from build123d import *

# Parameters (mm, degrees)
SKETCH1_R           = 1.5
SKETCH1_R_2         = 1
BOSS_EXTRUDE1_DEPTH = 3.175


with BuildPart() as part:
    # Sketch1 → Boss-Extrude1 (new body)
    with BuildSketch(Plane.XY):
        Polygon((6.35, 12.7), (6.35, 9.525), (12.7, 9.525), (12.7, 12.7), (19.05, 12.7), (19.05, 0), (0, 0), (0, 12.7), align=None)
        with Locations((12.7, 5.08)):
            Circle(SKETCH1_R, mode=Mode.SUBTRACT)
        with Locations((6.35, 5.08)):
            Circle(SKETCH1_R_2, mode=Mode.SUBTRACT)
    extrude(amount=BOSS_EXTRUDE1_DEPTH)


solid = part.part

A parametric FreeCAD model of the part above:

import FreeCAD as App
import Part
import Sketcher
Q = App.Units.Quantity


def add_polygon(sketch, points):
    """Adds a closed chain of lines whose ends are joined by coincident constraints."""
    first, n = sketch.GeometryCount, len(points)
    for a, b in zip(points, points[1:] + points[:1]):
        sketch.addGeometry(Part.LineSegment(App.Vector(*a, 0), App.Vector(*b, 0)), False)
    for i in range(n):
        sketch.addConstraint(Sketcher.Constraint("Coincident", first + i, 2, first + (i + 1) % n, 1))

doc = App.newDocument("Part")
body = doc.addObject("PartDesign::Body", "Body")

sketch1 = body.newObject("Sketcher::SketchObject", "Sketch")
sketch1.AttachmentSupport = (doc.getObject("XY_Plane"), [""])
sketch1.MapMode = "FlatFace"
add_polygon(sketch1, [(6.3, 9.5), (6.3, 12.7), (0, 12.7), (0, 0), (19.1, 0), (19.1, 12.7), (12.7, 12.7), (12.7, 9.5)])
sketch1.addGeometry(Part.Circle(App.Vector(12.7, 5.1, 0), App.Vector(0, 0, 1), 1.5), False)
sketch1.addGeometry(Part.Circle(App.Vector(6.3, 5.1, 0), App.Vector(0, 0, 1), 1), False)
sketch1.addConstraint(Sketcher.Constraint("Vertical", 0))
sketch1.addConstraint(Sketcher.Constraint("Horizontal", 1))
sketch1.addConstraint(Sketcher.Constraint("Vertical", 2))
sketch1.addConstraint(Sketcher.Constraint("Horizontal", 3))
sketch1.addConstraint(Sketcher.Constraint("Vertical", 4))
sketch1.addConstraint(Sketcher.Constraint("Horizontal", 5))
sketch1.addConstraint(Sketcher.Constraint("Vertical", 6))
sketch1.addConstraint(Sketcher.Constraint("Horizontal", 7))
sketch1.addConstraint(Sketcher.Constraint("Coincident", 2, 2, -1, 1))
sketch1.addConstraint(Sketcher.Constraint("Horizontal", 8, 3, 9, 3))
sketch1.addConstraint(Sketcher.Constraint("Horizontal", 1, 2, 4, 2))
sketch1.addConstraint(Sketcher.Constraint("Vertical", 9, 3, 0, 2))
sketch1.addConstraint(Sketcher.Constraint("Vertical", 8, 3, 5, 2))
sketch1.addConstraint(Sketcher.Constraint("Equal", 1, 5))
sketch1.addConstraint(Sketcher.Constraint("Equal", 5, 7))
sketch1.addConstraint(Sketcher.Constraint("DistanceY", 2, 2, 2, 1, Q("0.5 in")))
sketch1.addConstraint(Sketcher.Constraint("DistanceX", 1, 2, 1, 1, Q("0.25 in")))
sketch1.addConstraint(Sketcher.Constraint("DistanceY", -1, 1, 8, 3, Q("0.2 in")))
sketch1.addConstraint(Sketcher.Constraint("Diameter", 8, 3.0))
sketch1.addConstraint(Sketcher.Constraint("Diameter", 9, 2.0))
sketch1.addConstraint(Sketcher.Constraint("DistanceY", 0, 1, 0, 2, Q("0.125 in")))
pad1 = body.newObject("PartDesign::Pad", "Pad")
pad1.Profile = sketch1
pad1.Length = Q("0.125 in")

doc.recompute()
